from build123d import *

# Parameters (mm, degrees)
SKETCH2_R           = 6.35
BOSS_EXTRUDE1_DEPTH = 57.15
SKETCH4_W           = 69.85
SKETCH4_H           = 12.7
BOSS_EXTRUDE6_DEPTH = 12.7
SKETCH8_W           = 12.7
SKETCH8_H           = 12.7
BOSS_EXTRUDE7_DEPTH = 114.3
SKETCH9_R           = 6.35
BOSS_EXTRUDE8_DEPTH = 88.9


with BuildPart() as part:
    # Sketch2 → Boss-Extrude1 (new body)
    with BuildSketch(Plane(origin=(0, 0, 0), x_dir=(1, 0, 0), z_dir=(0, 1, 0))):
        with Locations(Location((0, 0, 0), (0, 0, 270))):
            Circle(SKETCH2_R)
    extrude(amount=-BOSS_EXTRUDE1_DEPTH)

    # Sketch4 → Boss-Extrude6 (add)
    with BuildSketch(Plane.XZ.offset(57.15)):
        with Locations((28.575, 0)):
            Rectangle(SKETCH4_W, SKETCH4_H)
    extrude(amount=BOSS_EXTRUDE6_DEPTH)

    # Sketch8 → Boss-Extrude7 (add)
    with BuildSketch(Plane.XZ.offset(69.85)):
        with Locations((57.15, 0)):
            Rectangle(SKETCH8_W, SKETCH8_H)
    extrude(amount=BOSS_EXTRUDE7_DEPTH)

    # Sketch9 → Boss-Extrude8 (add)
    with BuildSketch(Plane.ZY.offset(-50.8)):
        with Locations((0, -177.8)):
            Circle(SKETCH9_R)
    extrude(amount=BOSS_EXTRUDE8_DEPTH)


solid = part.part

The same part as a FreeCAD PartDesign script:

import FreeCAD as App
import Part
import Sketcher
from FreeCAD import Vector
Q = App.Units.Quantity

doc = App.newDocument("Part")
params = doc.addObject("Spreadsheet::Sheet", "Params")
for row, (alias, value) in enumerate([
    ("sketch1_diameter", "0.5 in"),
    ("pad1_length", "2.25 in"),
    ("sketch2_height", "0.5 in"),
    ("sketch2_width", "2.75 in"),
    ("pad2_length", "0.5 in"),
    ("sketch3_width", "0.5 in"),
    ("pad3_length", "4.5 in"),
    ("sketch4_diameter", "0.5 in"),
    ("pad4_length", "3.5 in"),
], start=1):
    params.set(f"A{row}", alias)
    params.set(f"B{row}", "=" + value)
    params.setAlias(f"B{row}", alias)

body = doc.addObject("PartDesign::Body", "Body")

# Sketch on XZ plane
sketch1 = body.newObject("Sketcher::SketchObject", "Sketch")
sketch1.AttachmentSupport = (doc.getObject("XZ_Plane"), [""])
sketch1.MapMode = "FlatFace"
sketch1.addGeometry(Part.Circle(Vector(0, 0, 0), Vector(0, 0, 1), 6.35), False)
sketch1.addConstraint(Sketcher.Constraint("Coincident", 0, 3, -1, 1))
sketch1.addConstraint(Sketcher.Constraint("Diameter", 0, Q("0.5 in")))
sketch1.setExpression("Constraints[1]", "Params.sketch1_diameter")
pad1 = body.newObject("PartDesign::Pad", "Pad")
pad1.Profile = sketch1
pad1.setExpression("Length", "Params.pad1_length")

# Sketch on XZ plane
sketch2 = body.newObject("Sketcher::SketchObject", "Sketch001")
sketch2.AttachmentSupport = (doc.getObject("XZ_Plane"), [""])
sketch2.MapMode = "FlatFace"
sketch2.AttachmentOffset = App.Placement(Vector(0, 0, 2.25 * 25.4), App.Rotation())
sketch2.addGeometry(Part.LineSegment(Vector(-6.35, 6.35, 0), Vector(-6.35, -6.35, 0)), False)
sketch2.addGeometry(Part.LineSegment(Vector(-6.35, -6.35, 0), Vector(63.5, -6.35, 0)), False)
sketch2.addGeometry(Part.LineSegment(Vector(63.5, -6.35, 0), Vector(63.5, 6.35, 0)), False)
sketch2.addGeometry(Part.LineSegment(Vector(63.5, 6.35, 0), Vector(-6.35, 6.35, 0)), False)
sketch2.addConstraint(Sketcher.Constraint("Coincident", 0, 2, 1, 1))
sketch2.addConstraint(Sketcher.Constraint("Coincident", 1, 2, 2, 1))
sketch2.addConstraint(Sketcher.Constraint("Coincident", 2, 2, 3, 1))
sketch2.addConstraint(Sketcher.Constraint("Coincident", 3, 2, 0, 1))
sketch2.addConstraint(Sketcher.Constraint("Vertical", 0))
sketch2.addConstraint(Sketcher.Constraint("Horizontal", 1))
sketch2.addConstraint(Sketcher.Constraint("Vertical", 2))
sketch2.addConstraint(Sketcher.Constraint("Horizontal", 3))
sketch2.addConstraint(Sketcher.Constraint("DistanceY", 0, 2, 0, 1, Q("0.5 in")))
sketch2.addConstraint(Sketcher.Constraint("DistanceX", 1, 1, 1, 2, Q("2.75 in")))
sketch2.addConstraint(Sketcher.Constraint("DistanceX", -1, 1, 1, 2, Q("2.5 in")))
sketch2.addConstraint(Sketcher.Constraint("DistanceY", 0, 2, -1, 1, Q("0.25 in")))
sketch2.setExpression("Constraints[8]", "Params.sketch2_height")
sketch2.setExpression("Constraints[9]", "Params.sketch2_width")
pad2 = body.newObject("PartDesign::Pad", "Pad001")
pad2.Profile = sketch2
pad2.setExpression("Length", "Params.pad2_length")

# Sketch on XZ plane
sketch3 = body.newObject("Sketcher::SketchObject", "Sketch002")
sketch3.AttachmentSupport = (doc.getObject("XZ_Plane"), [""])
sketch3.MapMode = "FlatFace"
sketch3.AttachmentOffset = App.Placement(Vector(0, 0, 2.75 * 25.4), App.Rotation())
sketch3.addGeometry(Part.LineSegment(Vector(50.8, 6.35, 0), Vector(50.8, -6.35, 0)), False)
sketch3.addGeometry(Part.LineSegment(Vector(50.8, -6.35, 0), Vector(63.5, -6.35, 0)), False)
sketch3.addGeometry(Part.LineSegment(Vector(63.5, -6.35, 0), Vector(63.5, 6.35, 0)), False)
sketch3.addGeometry(Part.LineSegment(Vector(63.5, 6.35, 0), Vector(50.8, 6.35, 0)), False)
sketch3.addConstraint(Sketcher.Constraint("Coincident", 0, 2, 1, 1))
sketch3.addConstraint(Sketcher.Constraint("Coincident", 1, 2, 2, 1))
sketch3.addConstraint(Sketcher.Constraint("Coincident", 2, 2, 3, 1))
sketch3.addConstraint(Sketcher.Constraint("Coincident", 3, 2, 0, 1))
sketch3.addConstraint(Sketcher.Constraint("Vertical", 0))
sketch3.addConstraint(Sketcher.Constraint("Horizontal", 1))
sketch3.addConstraint(Sketcher.Constraint("Vertical", 2))
sketch3.addConstraint(Sketcher.Constraint("Horizontal", 3))
sketch3.addConstraint(Sketcher.Constraint("Equal", 3, 0))
sketch3.addConstraint(Sketcher.Constraint("DistanceX", 1, 1, 1, 2, Q("0.5 in")))
sketch3.addConstraint(Sketcher.Constraint("DistanceX", -1, 1, 0, 2, Q("2 in")))
sketch3.addConstraint(Sketcher.Constraint("DistanceY", 0, 2, -1, 1, Q("0.25 in")))
sketch3.setExpression("Constraints[9]", "Params.sketch3_width")
pad3 = body.newObject("PartDesign::Pad", "Pad002")
pad3.Profile = sketch3
pad3.setExpression("Length", "Params.pad3_length")

# Sketch on YZ plane
sketch4 = body.newObject("Sketcher::SketchObject", "Sketch003")
sketch4.AttachmentSupport = (doc.getObject("YZ_Plane"), [""])
sketch4.MapMode = "FlatFace"
sketch4.AttachmentOffset = App.Placement(Vector(0, 0, 2 * 25.4), App.Rotation())
sketch4.addGeometry(Part.Circle(Vector(-177.8, 0, 0), Vector(0, 0, 1), 6.35), False)
sketch4.addConstraint(Sketcher.Constraint("PointOnObject", 0, 3, -1))
sketch4.addConstraint(Sketcher.Constraint("Diameter", 0, Q("0.5 in")))
sketch4.addConstraint(Sketcher.Constraint("DistanceX", 0, 3, -1, 1, Q("7 in")))
sketch4.setExpression("Constraints[1]", "Params.sketch4_diameter")
pad4 = body.newObject("PartDesign::Pad", "Pad003")
pad4.Profile = sketch4
pad4.setExpression("Length", "Params.pad4_length")
pad4.Reversed = True

doc.recompute()
